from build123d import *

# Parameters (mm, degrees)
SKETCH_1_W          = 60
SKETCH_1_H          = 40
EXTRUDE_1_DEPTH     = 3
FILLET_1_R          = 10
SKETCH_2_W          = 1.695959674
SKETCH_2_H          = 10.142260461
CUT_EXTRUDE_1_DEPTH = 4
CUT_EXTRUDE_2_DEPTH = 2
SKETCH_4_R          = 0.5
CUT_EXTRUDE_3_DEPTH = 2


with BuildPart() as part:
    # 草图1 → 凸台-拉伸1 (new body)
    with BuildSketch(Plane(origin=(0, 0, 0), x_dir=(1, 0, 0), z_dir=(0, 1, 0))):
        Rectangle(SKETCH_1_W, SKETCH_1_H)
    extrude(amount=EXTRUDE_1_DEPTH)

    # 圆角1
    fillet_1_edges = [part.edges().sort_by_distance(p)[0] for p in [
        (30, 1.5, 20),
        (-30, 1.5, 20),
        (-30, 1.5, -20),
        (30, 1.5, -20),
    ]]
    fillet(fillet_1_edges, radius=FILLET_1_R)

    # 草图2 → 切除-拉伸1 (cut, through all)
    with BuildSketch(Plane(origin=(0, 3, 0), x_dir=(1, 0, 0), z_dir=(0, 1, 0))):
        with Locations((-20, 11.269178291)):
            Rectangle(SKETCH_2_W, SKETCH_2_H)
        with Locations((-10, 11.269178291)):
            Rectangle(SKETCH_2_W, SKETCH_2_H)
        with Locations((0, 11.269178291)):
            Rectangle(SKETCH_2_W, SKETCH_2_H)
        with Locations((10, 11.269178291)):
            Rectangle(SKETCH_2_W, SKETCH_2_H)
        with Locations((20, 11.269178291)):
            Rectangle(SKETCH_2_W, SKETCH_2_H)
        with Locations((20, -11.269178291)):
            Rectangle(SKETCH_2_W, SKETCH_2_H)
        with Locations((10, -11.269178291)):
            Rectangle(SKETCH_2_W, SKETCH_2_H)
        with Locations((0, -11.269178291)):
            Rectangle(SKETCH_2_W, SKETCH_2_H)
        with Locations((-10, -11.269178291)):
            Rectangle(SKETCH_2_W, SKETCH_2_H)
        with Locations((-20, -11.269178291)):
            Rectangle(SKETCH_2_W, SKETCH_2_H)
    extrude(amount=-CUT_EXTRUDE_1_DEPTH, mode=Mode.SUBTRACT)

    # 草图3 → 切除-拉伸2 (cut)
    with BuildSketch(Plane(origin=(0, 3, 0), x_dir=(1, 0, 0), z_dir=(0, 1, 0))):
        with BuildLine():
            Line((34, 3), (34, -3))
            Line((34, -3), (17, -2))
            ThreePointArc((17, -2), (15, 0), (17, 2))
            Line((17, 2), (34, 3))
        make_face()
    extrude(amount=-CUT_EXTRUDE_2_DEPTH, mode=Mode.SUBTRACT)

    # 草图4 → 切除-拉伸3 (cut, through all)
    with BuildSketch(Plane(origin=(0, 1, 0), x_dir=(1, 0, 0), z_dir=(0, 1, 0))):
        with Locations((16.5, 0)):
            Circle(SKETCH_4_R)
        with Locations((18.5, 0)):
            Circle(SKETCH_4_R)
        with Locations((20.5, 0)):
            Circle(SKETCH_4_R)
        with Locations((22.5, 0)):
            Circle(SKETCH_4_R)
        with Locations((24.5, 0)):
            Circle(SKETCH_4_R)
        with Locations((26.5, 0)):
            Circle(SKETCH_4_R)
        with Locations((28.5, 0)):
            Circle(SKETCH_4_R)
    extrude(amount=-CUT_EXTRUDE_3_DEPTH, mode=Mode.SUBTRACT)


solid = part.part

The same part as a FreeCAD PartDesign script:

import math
import FreeCAD as App
import Part
import Sketcher
Q = App.Units.Quantity


def edges_at(feature, points):
    """Names of the edges that pass closest to the given points."""
    edges = feature.Shape.Edges
    near = lambda p: min(range(len(edges)), key=lambda i: edges[i].distToShape(Part.Vertex(*p))[0])
    return sorted({f"Edge{near(p) + 1}" for p in points})


def add_polygon(sketch, points):
    """Adds a closed chain of lines whose ends are joined by coincident constraints."""
    first, n = sketch.GeometryCount, len(points)
    for a, b in zip(points, points[1:] + points[:1]):
        sketch.addGeometry(Part.LineSegment(App.Vector(*a, 0), App.Vector(*b, 0)), False)
    for i in range(n):
        sketch.addConstraint(Sketcher.Constraint("Coincident", first + i, 2, first + (i + 1) % n, 1))

doc = App.newDocument("Part")
params = doc.addObject("Spreadsheet::Sheet", "Params")
for row, (alias, value) in enumerate([
    ("sketch1_width", "60 mm"),
    ("sketch1_height", "40 mm"),
    ("pad1_length", "3 mm"),
    ("fillet_radius", "10 mm"),
    ("sketch3_radius", "2 mm"),
    ("sketch3_height", "6 mm"),
    ("pocket2_length", "2 mm"),
    ("sketch4_diameter", "1 mm"),
], start=1):
    params.set(f"A{row}", alias)
    params.set(f"B{row}", "=" + value)
    params.setAlias(f"B{row}", alias)

body = doc.addObject("PartDesign::Body", "Body")

# Sketch on XZ plane
sketch1 = body.newObject("Sketcher::SketchObject", "Sketch")
sketch1.AttachmentSupport = (doc.getObject("XZ_Plane"), [""])
sketch1.MapMode = "FlatFace"
add_polygon(sketch1, [(-30, -20), (-30, 20), (30, 20), (30, -20)])  # lines 0-3
sketch1.addConstraint(Sketcher.Constraint("Vertical", 0))
sketch1.addConstraint(Sketcher.Constraint("Horizontal", 1))
sketch1.addConstraint(Sketcher.Constraint("Vertical", 2))
sketch1.addConstraint(Sketcher.Constraint("Horizontal", 3))
sketch1.addConstraint(Sketcher.Constraint("Symmetric", 0, 2, 2, 2, -1, 1))
sketch1.addConstraint(Sketcher.Constraint("DistanceX", 1, 1, 1, 2, Q("60 mm")))
sketch1.addConstraint(Sketcher.Constraint("DistanceY", 0, 1, 0, 2, Q("40 mm")))
sketch1.setExpression("Constraints[9]", "Params.sketch1_width")
sketch1.setExpression("Constraints[10]", "Params.sketch1_height")
pad1 = body.newObject("PartDesign::Pad", "Pad")
pad1.Profile = sketch1
pad1.setExpression("Length", "Params.pad1_length")
pad1.Reversed = True
doc.recompute()

fillet = body.newObject("PartDesign::Fillet", "Fillet")
fillet.Base = (pad1, edges_at(pad1, [
    (30, 1.5, 20),
    (-30, 1.5, 20),
    (-30, 1.5, -20),
    (30, 1.5, -20),
]))
fillet.setExpression("Radius", "Params.fillet_radius")

# Sketch on XZ plane
sketch2 = body.newObject("Sketcher::SketchObject", "Sketch001")
sketch2.AttachmentSupport = (doc.getObject("XZ_Plane"), [""])
sketch2.MapMode = "FlatFace"
sketch2.AttachmentOffset = App.Placement(App.Vector(0, 0, -3), App.Rotation())
add_polygon(sketch2, [(-20.8, -16.3), (-20.8, -6.2), (-19.2, -6.2), (-19.2, -16.3)])  # lines 0-3
add_polygon(sketch2, [(-10.8, -16.3), (-10.8, -6.2), (-9.2, -6.2), (-9.2, -16.3)])  # lines 4-7
add_polygon(sketch2, [(-0.8, -16.3), (-0.8, -6.2), (0.8, -6.2), (0.8, -16.3)])  # lines 8-11
add_polygon(sketch2, [(9.2, -16.3), (9.2, -6.2), (10.8, -6.2), (10.8, -16.3)])  # lines 12-15
add_polygon(sketch2, [(19.2, -16.3), (19.2, -6.2), (20.8, -6.2), (20.8, -16.3)])  # lines 16-19
add_polygon(sketch2, [(19.2, 6.2), (19.2, 16.3), (20.8, 16.3), (20.8, 6.2)])  # lines 20-23
add_polygon(sketch2, [(9.2, 6.2), (9.2, 16.3), (10.8, 16.3), (10.8, 6.2)])  # lines 24-27
add_polygon(sketch2, [(-0.8, 6.2), (-0.8, 16.3), (0.8, 16.3), (0.8, 6.2)])  # lines 28-31
add_polygon(sketch2, [(-10.8, 6.2), (-10.8, 16.3), (-9.2, 16.3), (-9.2, 6.2)])  # lines 32-35
add_polygon(sketch2, [(-20.8, 6.2), (-20.8, 16.3), (-19.2, 16.3), (-19.2, 6.2)])  # lines 36-39
sketch2.addConstraint(Sketcher.Constraint("Vertical", 0))
sketch2.addConstraint(Sketcher.Constraint("Horizontal", 1))
sketch2.addConstraint(Sketcher.Constraint("Vertical", 2))
sketch2.addConstraint(Sketcher.Constraint("Horizontal", 3))
sketch2.addConstraint(Sketcher.Constraint("Vertical", 4))
sketch2.addConstraint(Sketcher.Constraint("Horizontal", 5))
sketch2.addConstraint(Sketcher.Constraint("Vertical", 6))
sketch2.addConstraint(Sketcher.Constraint("Horizontal", 7))
sketch2.addConstraint(Sketcher.Constraint("Vertical", 8))
sketch2.addConstraint(Sketcher.Constraint("Horizontal", 9))
sketch2.addConstraint(Sketcher.Constraint("Vertical", 10))
sketch2.addConstraint(Sketcher.Constraint("Horizontal", 11))
sketch2.addConstraint(Sketcher.Constraint("Vertical", 12))
sketch2.addConstraint(Sketcher.Constraint("Horizontal", 13))
sketch2.addConstraint(Sketcher.Constraint("Vertical", 14))
sketch2.addConstraint(Sketcher.Constraint("Horizontal", 15))
sketch2.addConstraint(Sketcher.Constraint("Vertical", 16))
sketch2.addConstraint(Sketcher.Constraint("Horizontal", 17))
sketch2.addConstraint(Sketcher.Constraint("Vertical", 18))
sketch2.addConstraint(Sketcher.Constraint("Horizontal", 19))
sketch2.addConstraint(Sketcher.Constraint("Vertical", 20))
sketch2.addConstraint(Sketcher.Constraint("Horizontal", 21))
sketch2.addConstraint(Sketcher.Constraint("Vertical", 22))
sketch2.addConstraint(Sketcher.Constraint("Horizontal", 23))
sketch2.addConstraint(Sketcher.Constraint("Vertical", 24))
sketch2.addConstraint(Sketcher.Constraint("Horizontal", 25))
sketch2.addConstraint(Sketcher.Constraint("Vertical", 26))
sketch2.addConstraint(Sketcher.Constraint("Horizontal", 27))
sketch2.addConstraint(Sketcher.Constraint("Vertical", 28))
sketch2.addConstraint(Sketcher.Constraint("Horizontal", 29))
sketch2.addConstraint(Sketcher.Constraint("Vertical", 30))
sketch2.addConstraint(Sketcher.Constraint("Horizontal", 31))
sketch2.addConstraint(Sketcher.Constraint("Vertical", 32))
sketch2.addConstraint(Sketcher.Constraint("Horizontal", 33))
sketch2.addConstraint(Sketcher.Constraint("Vertical", 34))
sketch2.addConstraint(Sketcher.Constraint("Horizontal", 35))
sketch2.addConstraint(Sketcher.Constraint("Vertical", 36))
sketch2.addConstraint(Sketcher.Constraint("Horizontal", 37))
sketch2.addConstraint(Sketcher.Constraint("Vertical", 38))
sketch2.addConstraint(Sketcher.Constraint("Horizontal", 39))
sketch2.addConstraint(Sketcher.Constraint("Symmetric", 2, 2, 20, 2, -1, 1))
sketch2.addConstraint(Sketcher.Constraint("Symmetric", 0, 2, 22, 2, -1, 1))
sketch2.addConstraint(Sketcher.Constraint("Symmetric", 6, 2, 24, 2, -1, 1))
sketch2.addConstraint(Sketcher.Constraint("Symmetric", 4, 2, 26, 2, -1, 1))
sketch2.addConstraint(Sketcher.Constraint("Symmetric", 10, 2, 28, 2, -1, 1))
sketch2.addConstraint(Sketcher.Constraint("Symmetric", 8, 2, 30, 2, -1, 1))
sketch2.addConstraint(Sketcher.Constraint("Symmetric", 14, 2, 32, 2, -1, 1))
sketch2.addConstraint(Sketcher.Constraint("Symmetric", 12, 2, 34, 2, -1, 1))
sketch2.addConstraint(Sketcher.Constraint("Symmetric", 18, 2, 36, 2, -1, 1))
sketch2.addConstraint(Sketcher.Constraint("Symmetric", 16, 2, 38, 2, -1, 1))
sketch2.addConstraint(Sketcher.Constraint("Symmetric", 5, 2, 12, 2, -2))
sketch2.addConstraint(Sketcher.Constraint("Symmetric", 7, 2, 14, 2, -2))
sketch2.addConstraint(Sketcher.Constraint("Symmetric", 1, 2, 16, 2, -2))
sketch2.addConstraint(Sketcher.Constraint("Symmetric", 3, 2, 18, 2, -2))
sketch2.addConstraint(Sketcher.Constraint("Horizontal", 1, 2, 4, 2))
sketch2.addConstraint(Sketcher.Constraint("Horizontal", 3, 2, 6, 2))
sketch2.addConstraint(Sketcher.Constraint("Horizontal", 5, 2, 8, 2))
sketch2.addConstraint(Sketcher.Constraint("Horizontal", 7, 2, 10, 2))
sketch2.addConstraint(Sketcher.Constraint("Vertical", 11, 2, 28, 2))
sketch2.addConstraint(Sketcher.Constraint("Equal", 3, 5))
sketch2.addConstraint(Sketcher.Constraint("Equal", 7, 9))
sketch2.addConstraint(Sketcher.Constraint("DistanceX", 0, 2, 4, 2, Q("10 mm")))
sketch2.addConstraint(Sketcher.Constraint("DistanceX", 4, 2, 8, 2, Q("10 mm")))
sketch2.addConstraint(Sketcher.Constraint("DistanceX", 1, 1, 1, 2, Q("1.69596 mm")))
sketch2.addConstraint(Sketcher.Constraint("DistanceY", 0, 1, 0, 2, Q("10.14226 mm")))
sketch2.addConstraint(Sketcher.Constraint("DistanceY", 0, 2, -1, 1, Q("6.198048 mm")))
pocket1 = body.newObject("PartDesign::Pocket", "Pocket")
pocket1.Profile = sketch2
pocket1.Type = "ThroughAll"
pocket1.Reversed = True

# Sketch on XZ plane
sketch3 = body.newObject("Sketcher::SketchObject", "Sketch002")
sketch3.AttachmentSupport = (doc.getObject("XZ_Plane"), [""])
sketch3.MapMode = "FlatFace"
sketch3.AttachmentOffset = App.Placement(App.Vector(0, 0, -3), App.Rotation())
sketch3.addGeometry(Part.LineSegment(App.Vector(34, 3, 0), App.Vector(34, -3, 0)), False)
sketch3.addGeometry(Part.LineSegment(App.Vector(34, -3, 0), App.Vector(17, -2, 0)), False)
sketch3.addGeometry(Part.ArcOfCircle(Part.Circle(App.Vector(17, 0, 0), App.Vector(0, 0, 1), 2), math.radians(90), math.radians(270)), False)
sketch3.addGeometry(Part.LineSegment(App.Vector(17, 2, 0), App.Vector(34, 3, 0)), False)
sketch3.addConstraint(Sketcher.Constraint("Coincident", 0, 2, 1, 1))
sketch3.addConstraint(Sketcher.Constraint("Coincident", 1, 2, 2, 2))
sketch3.addConstraint(Sketcher.Constraint("Coincident", 2, 1, 3, 1))
sketch3.addConstraint(Sketcher.Constraint("Coincident", 3, 2, 0, 1))
sketch3.addConstraint(Sketcher.Constraint("Vertical", 0))
sketch3.addConstraint(Sketcher.Constraint("Symmetric", 1, 2, 2, 1, -1))
sketch3.addConstraint(Sketcher.Constraint("Vertical", 2, 3, 1, 2))
sketch3.addConstraint(Sketcher.Constraint("Equal", 1, 3))
sketch3.addConstraint(Sketcher.Constraint("Radius", 2, Q("2 mm")))
sketch3.addConstraint(Sketcher.Constraint("DistanceY", 0, 2, 0, 1, Q("6 mm")))
sketch3.addConstraint(Sketcher.Constraint("DistanceX", -1, 1, 2, 3, Q("17 mm")))
sketch3.addConstraint(Sketcher.Constraint("DistanceX", -1, 1, 0, 2, Q("34 mm")))
sketch3.setExpression("Constraints[8]", "Params.sketch3_radius")
sketch3.setExpression("Constraints[9]", "Params.sketch3_height")
pocket2 = body.newObject("PartDesign::Pocket", "Pocket001")
pocket2.Profile = sketch3
pocket2.setExpression("Length", "Params.pocket2_length")
pocket2.Reversed = True

# Sketch on XZ plane
sketch4 = body.newObject("Sketcher::SketchObject", "Sketch003")
sketch4.AttachmentSupport = (doc.getObject("XZ_Plane"), [""])
sketch4.MapMode = "FlatFace"
sketch4.AttachmentOffset = App.Placement(App.Vector(0, 0, -1), App.Rotation())
sketch4.addGeometry(Part.Circle(App.Vector(16.5, 0, 0), App.Vector(0, 0, 1), 0.5), False)
sketch4.addGeometry(Part.Circle(App.Vector(18.5, 0, 0), App.Vector(0, 0, 1), 0.5), False)
sketch4.addGeometry(Part.Circle(App.Vector(20.5, 0, 0), App.Vector(0, 0, 1), 0.5), False)
sketch4.addGeometry(Part.Circle(App.Vector(22.5, 0, 0), App.Vector(0, 0, 1), 0.5), False)
sketch4.addGeometry(Part.Circle(App.Vector(24.5, 0, 0), App.Vector(0, 0, 1), 0.5), False)
sketch4.addGeometry(Part.Circle(App.Vector(26.5, 0, 0), App.Vector(0, 0, 1), 0.5), False)
sketch4.addGeometry(Part.Circle(App.Vector(28.5, 0, 0), App.Vector(0, 0, 1), 0.5), False)
sketch4.addConstraint(Sketcher.Constraint("Equal", 0, 1))
sketch4.addConstraint(Sketcher.Constraint("Equal", 1, 2))
sketch4.addConstraint(Sketcher.Constraint("Equal", 2, 3))
sketch4.addConstraint(Sketcher.Constraint("Equal", 3, 4))
sketch4.addConstraint(Sketcher.Constraint("Equal", 4, 5))
sketch4.addConstraint(Sketcher.Constraint("Equal", 5, 6))
sketch4.addConstraint(Sketcher.Constraint("PointOnObject", 0, 3, -1))
sketch4.addConstraint(Sketcher.Constraint("PointOnObject", 1, 3, -1))
sketch4.addConstraint(Sketcher.Constraint("PointOnObject", 2, 3, -1))
sketch4.addConstraint(Sketcher.Constraint("PointOnObject", 3, 3, -1))
sketch4.addConstraint(Sketcher.Constraint("PointOnObject", 4, 3, -1))
sketch4.addConstraint(Sketcher.Constraint("PointOnObject", 5, 3, -1))
sketch4.addConstraint(Sketcher.Constraint("PointOnObject", 6, 3, -1))
sketch4.addConstraint(Sketcher.Constraint("Diameter", 0, Q("1 mm")))
sketch4.addConstraint(Sketcher.Constraint("DistanceX", 0, 3, 1, 3, Q("2 mm")))
sketch4.addConstraint(Sketcher.Constraint("DistanceX", 1, 3, 2, 3, Q("2 mm")))
sketch4.addConstraint(Sketcher.Constraint("DistanceX", 2, 3, 3, 3, Q("2 mm")))
sketch4.addConstraint(Sketcher.Constraint("DistanceX", 3, 3, 4, 3, Q("2 mm")))
sketch4.addConstraint(Sketcher.Constraint("DistanceX", 4, 3, 5, 3, Q("2 mm")))
sketch4.addConstraint(Sketcher.Constraint("DistanceX", 5, 3, 6, 3, Q("2 mm")))
sketch4.addConstraint(Sketcher.Constraint("DistanceX", -1, 1, 0, 3, Q("16.5 mm")))
sketch4.setExpression("Constraints[13]", "Params.sketch4_diameter")
pocket3 = body.newObject("PartDesign::Pocket", "Pocket002")
pocket3.Profile = sketch4
pocket3.Type = "ThroughAll"
pocket3.Reversed = True

doc.recompute()
